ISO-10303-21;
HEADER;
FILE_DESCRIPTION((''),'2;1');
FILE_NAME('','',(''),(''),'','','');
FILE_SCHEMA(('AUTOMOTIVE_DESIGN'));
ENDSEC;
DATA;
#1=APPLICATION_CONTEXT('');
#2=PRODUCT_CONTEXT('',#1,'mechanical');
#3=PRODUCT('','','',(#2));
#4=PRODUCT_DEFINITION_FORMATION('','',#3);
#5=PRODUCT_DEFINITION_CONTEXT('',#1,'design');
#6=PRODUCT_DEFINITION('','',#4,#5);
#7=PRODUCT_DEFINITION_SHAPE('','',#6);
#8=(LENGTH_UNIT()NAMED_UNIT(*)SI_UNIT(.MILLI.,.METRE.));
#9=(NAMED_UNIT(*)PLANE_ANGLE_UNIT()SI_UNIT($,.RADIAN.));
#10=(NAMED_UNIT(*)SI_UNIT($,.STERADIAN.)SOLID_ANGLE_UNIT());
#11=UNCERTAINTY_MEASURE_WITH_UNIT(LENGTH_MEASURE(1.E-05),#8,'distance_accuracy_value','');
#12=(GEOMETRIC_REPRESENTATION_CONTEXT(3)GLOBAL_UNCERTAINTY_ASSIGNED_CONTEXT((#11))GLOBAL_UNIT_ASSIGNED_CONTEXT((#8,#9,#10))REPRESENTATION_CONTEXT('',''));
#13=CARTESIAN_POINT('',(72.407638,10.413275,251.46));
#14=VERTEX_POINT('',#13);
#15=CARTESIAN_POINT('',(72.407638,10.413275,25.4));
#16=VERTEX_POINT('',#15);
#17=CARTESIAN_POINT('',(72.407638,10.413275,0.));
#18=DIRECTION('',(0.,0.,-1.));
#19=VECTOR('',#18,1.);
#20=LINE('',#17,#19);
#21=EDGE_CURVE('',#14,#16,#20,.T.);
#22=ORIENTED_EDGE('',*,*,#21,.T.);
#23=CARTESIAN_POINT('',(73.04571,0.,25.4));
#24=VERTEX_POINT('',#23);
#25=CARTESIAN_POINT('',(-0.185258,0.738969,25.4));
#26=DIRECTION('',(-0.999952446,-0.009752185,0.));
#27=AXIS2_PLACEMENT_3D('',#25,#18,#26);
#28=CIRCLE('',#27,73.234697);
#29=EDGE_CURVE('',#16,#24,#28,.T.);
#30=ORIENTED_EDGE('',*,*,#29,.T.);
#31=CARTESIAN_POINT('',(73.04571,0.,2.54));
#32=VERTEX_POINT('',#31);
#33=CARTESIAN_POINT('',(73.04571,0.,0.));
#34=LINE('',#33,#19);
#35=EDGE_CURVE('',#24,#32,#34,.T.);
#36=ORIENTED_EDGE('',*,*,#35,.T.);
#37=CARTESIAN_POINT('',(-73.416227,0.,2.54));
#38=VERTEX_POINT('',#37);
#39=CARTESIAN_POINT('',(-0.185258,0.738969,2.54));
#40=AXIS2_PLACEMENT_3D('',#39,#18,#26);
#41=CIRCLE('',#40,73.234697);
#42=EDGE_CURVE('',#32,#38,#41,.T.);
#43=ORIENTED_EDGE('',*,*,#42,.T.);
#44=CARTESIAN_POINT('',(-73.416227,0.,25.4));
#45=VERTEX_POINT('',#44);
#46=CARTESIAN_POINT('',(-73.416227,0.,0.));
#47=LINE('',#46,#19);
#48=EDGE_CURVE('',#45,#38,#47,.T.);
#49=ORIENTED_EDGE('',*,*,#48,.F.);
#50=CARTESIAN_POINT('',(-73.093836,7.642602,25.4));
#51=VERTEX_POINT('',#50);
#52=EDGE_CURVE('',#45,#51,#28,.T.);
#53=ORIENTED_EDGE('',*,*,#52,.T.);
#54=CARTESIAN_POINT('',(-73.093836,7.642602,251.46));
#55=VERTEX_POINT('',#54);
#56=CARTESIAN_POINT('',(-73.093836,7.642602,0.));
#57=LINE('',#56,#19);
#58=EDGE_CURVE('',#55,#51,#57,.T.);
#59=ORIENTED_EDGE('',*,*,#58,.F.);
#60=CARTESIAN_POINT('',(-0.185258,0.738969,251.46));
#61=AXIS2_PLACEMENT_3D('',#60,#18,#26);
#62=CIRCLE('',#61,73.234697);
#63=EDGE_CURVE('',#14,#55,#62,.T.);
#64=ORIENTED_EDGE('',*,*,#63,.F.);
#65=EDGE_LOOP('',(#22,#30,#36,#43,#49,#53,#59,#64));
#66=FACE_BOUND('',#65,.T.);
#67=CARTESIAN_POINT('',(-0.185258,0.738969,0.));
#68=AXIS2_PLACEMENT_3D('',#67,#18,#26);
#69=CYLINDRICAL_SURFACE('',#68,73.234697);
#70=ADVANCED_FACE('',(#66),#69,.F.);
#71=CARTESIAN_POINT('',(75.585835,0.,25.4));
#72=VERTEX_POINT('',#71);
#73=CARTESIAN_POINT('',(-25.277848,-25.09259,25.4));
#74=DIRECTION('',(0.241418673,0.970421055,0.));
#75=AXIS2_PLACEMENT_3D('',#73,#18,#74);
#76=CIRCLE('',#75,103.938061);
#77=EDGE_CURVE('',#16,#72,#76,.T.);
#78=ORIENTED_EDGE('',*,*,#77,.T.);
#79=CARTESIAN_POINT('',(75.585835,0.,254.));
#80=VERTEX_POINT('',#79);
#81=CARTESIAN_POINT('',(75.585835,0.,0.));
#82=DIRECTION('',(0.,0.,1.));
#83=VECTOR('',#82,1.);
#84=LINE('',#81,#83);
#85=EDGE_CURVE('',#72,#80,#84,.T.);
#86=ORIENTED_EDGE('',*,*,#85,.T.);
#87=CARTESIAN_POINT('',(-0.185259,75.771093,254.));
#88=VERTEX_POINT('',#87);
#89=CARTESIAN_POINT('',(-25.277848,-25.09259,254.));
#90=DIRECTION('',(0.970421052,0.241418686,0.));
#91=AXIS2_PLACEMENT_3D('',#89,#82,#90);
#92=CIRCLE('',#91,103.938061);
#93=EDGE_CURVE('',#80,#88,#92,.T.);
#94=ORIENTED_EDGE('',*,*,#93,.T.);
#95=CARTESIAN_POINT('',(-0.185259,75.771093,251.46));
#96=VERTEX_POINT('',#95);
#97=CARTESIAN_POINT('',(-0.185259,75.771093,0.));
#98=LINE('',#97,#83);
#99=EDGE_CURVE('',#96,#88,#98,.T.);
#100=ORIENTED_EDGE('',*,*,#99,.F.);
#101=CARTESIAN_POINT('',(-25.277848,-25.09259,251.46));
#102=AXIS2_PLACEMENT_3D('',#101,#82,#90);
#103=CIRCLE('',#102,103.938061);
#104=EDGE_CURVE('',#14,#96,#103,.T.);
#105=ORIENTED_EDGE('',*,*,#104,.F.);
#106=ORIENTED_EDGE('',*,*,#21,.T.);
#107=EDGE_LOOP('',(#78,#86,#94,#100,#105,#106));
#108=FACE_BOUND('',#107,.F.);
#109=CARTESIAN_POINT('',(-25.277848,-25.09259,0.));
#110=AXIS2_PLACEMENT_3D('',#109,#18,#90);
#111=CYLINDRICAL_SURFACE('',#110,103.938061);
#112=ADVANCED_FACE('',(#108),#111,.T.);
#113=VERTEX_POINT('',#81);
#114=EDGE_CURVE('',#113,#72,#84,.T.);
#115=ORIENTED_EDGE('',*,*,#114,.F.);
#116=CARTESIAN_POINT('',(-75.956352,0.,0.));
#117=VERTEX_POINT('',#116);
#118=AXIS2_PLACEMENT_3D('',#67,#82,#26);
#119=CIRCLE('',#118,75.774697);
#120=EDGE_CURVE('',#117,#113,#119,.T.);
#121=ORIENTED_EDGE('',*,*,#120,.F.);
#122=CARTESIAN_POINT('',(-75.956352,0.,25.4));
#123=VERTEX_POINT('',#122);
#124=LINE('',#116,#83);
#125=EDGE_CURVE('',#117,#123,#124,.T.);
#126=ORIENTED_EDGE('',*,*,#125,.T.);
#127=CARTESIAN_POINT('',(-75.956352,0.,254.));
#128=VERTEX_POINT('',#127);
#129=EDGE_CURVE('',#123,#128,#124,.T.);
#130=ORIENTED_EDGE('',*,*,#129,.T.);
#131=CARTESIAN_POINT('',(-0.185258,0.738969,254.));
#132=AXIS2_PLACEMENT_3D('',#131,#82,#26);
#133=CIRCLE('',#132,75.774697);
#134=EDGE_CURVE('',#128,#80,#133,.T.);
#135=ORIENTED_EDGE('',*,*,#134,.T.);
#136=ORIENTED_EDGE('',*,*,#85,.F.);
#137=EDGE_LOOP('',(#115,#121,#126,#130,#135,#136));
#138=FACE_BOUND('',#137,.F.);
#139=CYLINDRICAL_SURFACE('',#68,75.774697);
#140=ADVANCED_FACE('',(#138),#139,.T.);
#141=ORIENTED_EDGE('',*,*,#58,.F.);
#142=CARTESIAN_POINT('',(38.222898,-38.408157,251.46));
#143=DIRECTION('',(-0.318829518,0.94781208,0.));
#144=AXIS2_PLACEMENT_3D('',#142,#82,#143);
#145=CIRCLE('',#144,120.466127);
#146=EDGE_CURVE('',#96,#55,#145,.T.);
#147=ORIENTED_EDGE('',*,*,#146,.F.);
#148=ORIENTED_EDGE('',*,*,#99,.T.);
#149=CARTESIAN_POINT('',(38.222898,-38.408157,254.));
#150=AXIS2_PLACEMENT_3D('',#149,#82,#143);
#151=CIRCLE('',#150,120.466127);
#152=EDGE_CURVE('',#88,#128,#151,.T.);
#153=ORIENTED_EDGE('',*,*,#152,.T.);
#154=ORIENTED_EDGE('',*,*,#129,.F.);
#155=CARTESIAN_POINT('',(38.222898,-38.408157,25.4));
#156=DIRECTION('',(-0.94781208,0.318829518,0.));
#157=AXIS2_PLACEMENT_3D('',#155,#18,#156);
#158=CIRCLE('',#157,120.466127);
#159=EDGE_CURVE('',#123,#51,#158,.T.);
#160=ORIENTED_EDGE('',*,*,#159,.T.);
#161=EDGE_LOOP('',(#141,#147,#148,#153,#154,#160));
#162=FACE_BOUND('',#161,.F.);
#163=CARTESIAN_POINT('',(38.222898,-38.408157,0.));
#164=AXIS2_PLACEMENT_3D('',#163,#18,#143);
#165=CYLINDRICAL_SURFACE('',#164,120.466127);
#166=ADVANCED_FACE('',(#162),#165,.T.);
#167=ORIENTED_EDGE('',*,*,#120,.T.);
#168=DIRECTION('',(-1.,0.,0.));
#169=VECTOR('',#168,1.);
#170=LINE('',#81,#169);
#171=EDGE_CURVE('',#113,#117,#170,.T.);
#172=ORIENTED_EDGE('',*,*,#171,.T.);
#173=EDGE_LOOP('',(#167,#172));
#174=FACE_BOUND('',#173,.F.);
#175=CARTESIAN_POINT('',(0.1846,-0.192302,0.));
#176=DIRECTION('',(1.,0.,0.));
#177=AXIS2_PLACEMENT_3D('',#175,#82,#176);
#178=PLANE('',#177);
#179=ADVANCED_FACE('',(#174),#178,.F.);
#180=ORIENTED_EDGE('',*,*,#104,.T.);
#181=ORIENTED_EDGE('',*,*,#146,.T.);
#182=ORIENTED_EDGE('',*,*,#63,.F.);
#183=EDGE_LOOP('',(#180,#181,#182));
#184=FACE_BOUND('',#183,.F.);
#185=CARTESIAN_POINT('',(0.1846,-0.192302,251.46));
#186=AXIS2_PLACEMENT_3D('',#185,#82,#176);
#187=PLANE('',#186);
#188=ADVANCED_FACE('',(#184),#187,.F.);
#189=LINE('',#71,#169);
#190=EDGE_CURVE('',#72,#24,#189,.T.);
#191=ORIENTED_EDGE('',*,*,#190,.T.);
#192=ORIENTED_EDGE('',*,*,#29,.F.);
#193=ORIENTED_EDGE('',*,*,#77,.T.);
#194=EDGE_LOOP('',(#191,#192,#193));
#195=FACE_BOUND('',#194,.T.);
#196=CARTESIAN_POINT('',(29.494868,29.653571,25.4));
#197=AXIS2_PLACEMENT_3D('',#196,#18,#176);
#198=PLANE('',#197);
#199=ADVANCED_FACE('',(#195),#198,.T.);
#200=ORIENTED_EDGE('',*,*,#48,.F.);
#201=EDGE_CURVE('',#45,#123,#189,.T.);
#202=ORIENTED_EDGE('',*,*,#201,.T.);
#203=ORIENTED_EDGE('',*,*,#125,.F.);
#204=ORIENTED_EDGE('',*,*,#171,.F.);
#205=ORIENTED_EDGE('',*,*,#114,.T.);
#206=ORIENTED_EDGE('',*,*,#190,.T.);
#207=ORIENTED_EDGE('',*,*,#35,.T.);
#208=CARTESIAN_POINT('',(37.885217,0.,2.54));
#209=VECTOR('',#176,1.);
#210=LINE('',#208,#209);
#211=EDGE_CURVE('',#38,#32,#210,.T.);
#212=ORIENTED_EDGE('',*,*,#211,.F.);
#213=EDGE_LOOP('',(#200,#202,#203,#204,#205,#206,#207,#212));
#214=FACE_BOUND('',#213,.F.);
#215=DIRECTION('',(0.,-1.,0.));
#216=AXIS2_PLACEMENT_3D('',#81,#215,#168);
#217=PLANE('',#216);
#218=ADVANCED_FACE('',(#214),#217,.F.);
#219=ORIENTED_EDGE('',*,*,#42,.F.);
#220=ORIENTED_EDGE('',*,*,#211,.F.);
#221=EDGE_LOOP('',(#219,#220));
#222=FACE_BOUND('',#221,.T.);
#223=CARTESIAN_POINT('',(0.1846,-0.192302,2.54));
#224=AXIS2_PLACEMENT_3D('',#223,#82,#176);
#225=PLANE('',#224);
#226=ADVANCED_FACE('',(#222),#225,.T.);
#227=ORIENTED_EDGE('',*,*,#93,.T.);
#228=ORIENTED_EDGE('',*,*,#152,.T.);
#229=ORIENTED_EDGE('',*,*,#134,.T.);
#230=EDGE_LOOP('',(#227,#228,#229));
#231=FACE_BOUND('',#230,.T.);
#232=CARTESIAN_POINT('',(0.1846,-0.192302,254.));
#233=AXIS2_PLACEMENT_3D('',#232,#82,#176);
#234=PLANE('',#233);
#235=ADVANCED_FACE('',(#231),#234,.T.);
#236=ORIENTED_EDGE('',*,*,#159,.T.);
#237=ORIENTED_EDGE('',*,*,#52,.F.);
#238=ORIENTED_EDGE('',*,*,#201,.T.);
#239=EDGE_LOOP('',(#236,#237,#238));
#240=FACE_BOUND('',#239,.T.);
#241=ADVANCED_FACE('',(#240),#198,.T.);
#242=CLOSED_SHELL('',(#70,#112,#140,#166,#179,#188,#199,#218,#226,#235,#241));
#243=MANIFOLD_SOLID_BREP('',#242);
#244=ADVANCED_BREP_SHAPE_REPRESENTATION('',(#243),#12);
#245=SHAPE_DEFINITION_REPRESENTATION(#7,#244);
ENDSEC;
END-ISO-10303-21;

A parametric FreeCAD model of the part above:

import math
import FreeCAD as App
import Part
import Sketcher
from FreeCAD import Vector


def faces_at(feature, points):
    """Names of the faces that lie closest to the given points."""
    faces = feature.Shape.Faces
    near = lambda p: min(range(len(faces)), key=lambda i: faces[i].distToShape(Part.Vertex(*p))[0])
    return sorted({f"Face{near(p) + 1}" for p in points})

doc = App.newDocument("Part")
params = doc.addObject("Spreadsheet::Sheet", "Params")
for row, (alias, value) in enumerate([
    ("pad1_length", "10 in"),
    ("thickness_wall", "0.1 in"),
    ("pocket1_length", "1 in"),
], start=1):
    params.set(f"A{row}", alias)
    params.set(f"B{row}", "=" + value)
    params.setAlias(f"B{row}", alias)

body = doc.addObject("PartDesign::Body", "Body")

sketch1 = body.newObject("Sketcher::SketchObject", "Sketch")
sketch1.AttachmentSupport = (doc.getObject("XY_Plane"), [""])
sketch1.MapMode = "FlatFace"
sketch1.addGeometry(Part.ArcOfCircle(Part.Circle(Vector(38, -38, 0), Vector(0, 0, 1), 120), math.radians(109), math.radians(161)), False)
sketch1.addGeometry(Part.ArcOfCircle(Part.Circle(Vector(0, 1, 0), Vector(0, 0, 1), 76), math.radians(-179), math.radians(-1)), False)
sketch1.addGeometry(Part.ArcOfCircle(Part.Circle(Vector(-25, -25, 0), Vector(0, 0, 1), 104), math.radians(14), math.radians(76)), False)
sketch1.addConstraint(Sketcher.Constraint("Coincident", 0, 2, 1, 1))
sketch1.addConstraint(Sketcher.Constraint("Coincident", 1, 2, 2, 1))
sketch1.addConstraint(Sketcher.Constraint("Coincident", 2, 2, 0, 1))
sketch1.addConstraint(Sketcher.Constraint("PointOnObject", 0, 2, -1))
sketch1.addConstraint(Sketcher.Constraint("PointOnObject", 1, 2, -1))
sketch1.addConstraint(Sketcher.Constraint("Vertical", 1, 3, 2, 2))
sketch1.addConstraint(Sketcher.Constraint("Radius", 2, 103.938061))
sketch1.addConstraint(Sketcher.Constraint("Radius", 0, 120.466127))
sketch1.addConstraint(Sketcher.Constraint("Radius", 1, 75.774697))
sketch1.addConstraint(Sketcher.Constraint("DistanceX", -1, 1, 0, 3, 38.222898))
sketch1.addConstraint(Sketcher.Constraint("DistanceX", 1, 3, -1, 1, 0.185258))
sketch1.addConstraint(Sketcher.Constraint("DistanceY", -1, 1, 1, 3, 0.738969))
pad1 = body.newObject("PartDesign::Pad", "Pad")
pad1.Profile = sketch1
pad1.setExpression("Length", "Params.pad1_length")
doc.recompute()

thickness = body.newObject("PartDesign::Thickness", "Thickness")
thickness.Base = (pad1, faces_at(pad1, [(-46.96, 46.774, 127), (48.217, 48.403, 127)]))
thickness.setExpression("Value", "Params.thickness_wall")
thickness.Reversed = True
thickness.Join = "Arc"

sketch2 = body.newObject("Sketcher::SketchObject", "Sketch001")
sketch2.AttachmentSupport = (doc.getObject("XY_Plane"), [""])
sketch2.MapMode = "FlatFace"
sketch2.addGeometry(Part.ArcOfCircle(Part.Circle(Vector(-25, -25, 0), Vector(0, 0, 1), 104), math.radians(14), math.radians(76)), False)
sketch2.addGeometry(Part.LineSegment(Vector(76, 0, 0), Vector(-76, 0, 0)), False)
sketch2.addGeometry(Part.ArcOfCircle(Part.Circle(Vector(38, -38, 0), Vector(0, 0, 1), 120), math.radians(109), math.radians(161)), False)
sketch2.addConstraint(Sketcher.Constraint("Coincident", 0, 1, 1, 1))
sketch2.addConstraint(Sketcher.Constraint("Coincident", 1, 2, 2, 2))
sketch2.addConstraint(Sketcher.Constraint("Coincident", 2, 1, 0, 2))
sketch2.addConstraint(Sketcher.Constraint("Horizontal", 1))
sketch2.addConstraint(Sketcher.Constraint("PointOnObject", 0, 1, -1))
sketch2.addConstraint(Sketcher.Constraint("Radius", 0, 103.938061))
sketch2.addConstraint(Sketcher.Constraint("Radius", 2, 120.466127))
sketch2.addConstraint(Sketcher.Constraint("DistanceX", -1, 1, 2, 3, 38.222898))
sketch2.addConstraint(Sketcher.Constraint("DistanceX", 1, 2, 1, 1, 151.542187))
sketch2.addConstraint(Sketcher.Constraint("DistanceY", 0, 3, -1, 1, 25.09259))
sketch2.addConstraint(Sketcher.Constraint("DistanceX", 1, 2, -1, 1, 75.956352))
pocket1 = body.newObject("PartDesign::Pocket", "Pocket")
pocket1.Profile = sketch2
pocket1.setExpression("Length", "Params.pocket1_length")
pocket1.Reversed = True

doc.recompute()
